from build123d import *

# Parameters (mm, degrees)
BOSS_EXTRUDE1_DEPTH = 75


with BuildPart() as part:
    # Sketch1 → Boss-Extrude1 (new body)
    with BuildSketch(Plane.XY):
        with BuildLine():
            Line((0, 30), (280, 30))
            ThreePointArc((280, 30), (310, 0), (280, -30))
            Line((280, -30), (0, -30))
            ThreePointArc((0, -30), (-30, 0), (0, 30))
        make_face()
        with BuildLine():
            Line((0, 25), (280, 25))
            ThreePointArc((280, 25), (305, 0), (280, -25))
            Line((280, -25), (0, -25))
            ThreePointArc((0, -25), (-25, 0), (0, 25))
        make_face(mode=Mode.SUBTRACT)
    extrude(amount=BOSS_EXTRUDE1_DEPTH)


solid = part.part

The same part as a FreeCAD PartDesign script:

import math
import FreeCAD as App
import Part
import Sketcher
from FreeCAD import Vector
Q = App.Units.Quantity

doc = App.newDocument("Part")
body = doc.addObject("PartDesign::Body", "Body")

# Sketch on XY plane
sketch1 = body.newObject("Sketcher::SketchObject", "Sketch")
sketch1.AttachmentSupport = (doc.getObject("XY_Plane"), [""])
sketch1.MapMode = "FlatFace"
sketch1.addGeometry([
    Part.LineSegment(Vector(280, 30, 0), Vector(0, 30, 0)),  # 0
    Part.ArcOfCircle(Part.Circle(Vector(0, 0, 0), Vector(0, 0, 1), 30), math.radians(90), math.radians(270)),  # 1
    Part.LineSegment(Vector(0, -30, 0), Vector(280, -30, 0)),  # 2
    Part.ArcOfCircle(Part.Circle(Vector(280, 0, 0), Vector(0, 0, 1), 30), math.radians(-90), math.radians(90)),  # 3
    Part.LineSegment(Vector(0, 25, 0), Vector(280, 25, 0)),  # 4
    Part.ArcOfCircle(Part.Circle(Vector(280, 0, 0), Vector(0, 0, 1), 25), math.radians(-90), math.radians(90)),  # 5
    Part.LineSegment(Vector(280, -25, 0), Vector(0, -25, 0)),  # 6
    Part.ArcOfCircle(Part.Circle(Vector(0, 0, 0), Vector(0, 0, 1), 25), math.radians(90), math.radians(270)),  # 7
], False)
sketch1.addConstraint([
    Sketcher.Constraint("Tangent", 0, 2, 1, 1),
    Sketcher.Constraint("Tangent", 1, 2, 2, 1),
    Sketcher.Constraint("Tangent", 2, 2, 3, 1),
    Sketcher.Constraint("Tangent", 3, 2, 0, 1),
    Sketcher.Constraint("Tangent", 4, 2, 5, 2),
    Sketcher.Constraint("Tangent", 5, 1, 6, 1),
    Sketcher.Constraint("Tangent", 6, 2, 7, 2),
    Sketcher.Constraint("Tangent", 7, 1, 4, 1),
    Sketcher.Constraint("Horizontal", 0),
    Sketcher.Constraint("Horizontal", 2),
    Sketcher.Constraint("Horizontal", 4),
    Sketcher.Constraint("Horizontal", 6),
    Sketcher.Constraint("Coincident", 1, 3, -1, 1),
    Sketcher.Constraint("Coincident", 7, 3, -1, 1),
    Sketcher.Constraint("Vertical", 5, 3, 2, 2),
    Sketcher.Constraint("Radius", 1, Q("30 mm")),
    Sketcher.Constraint("Radius", 5, Q("25 mm")),
    Sketcher.Constraint("DistanceX", 0, 2, 0, 1, Q("280 mm")),
])
pad1 = body.newObject("PartDesign::Pad", "Pad")
pad1.Profile = sketch1
pad1.Length = 75

doc.recompute()
